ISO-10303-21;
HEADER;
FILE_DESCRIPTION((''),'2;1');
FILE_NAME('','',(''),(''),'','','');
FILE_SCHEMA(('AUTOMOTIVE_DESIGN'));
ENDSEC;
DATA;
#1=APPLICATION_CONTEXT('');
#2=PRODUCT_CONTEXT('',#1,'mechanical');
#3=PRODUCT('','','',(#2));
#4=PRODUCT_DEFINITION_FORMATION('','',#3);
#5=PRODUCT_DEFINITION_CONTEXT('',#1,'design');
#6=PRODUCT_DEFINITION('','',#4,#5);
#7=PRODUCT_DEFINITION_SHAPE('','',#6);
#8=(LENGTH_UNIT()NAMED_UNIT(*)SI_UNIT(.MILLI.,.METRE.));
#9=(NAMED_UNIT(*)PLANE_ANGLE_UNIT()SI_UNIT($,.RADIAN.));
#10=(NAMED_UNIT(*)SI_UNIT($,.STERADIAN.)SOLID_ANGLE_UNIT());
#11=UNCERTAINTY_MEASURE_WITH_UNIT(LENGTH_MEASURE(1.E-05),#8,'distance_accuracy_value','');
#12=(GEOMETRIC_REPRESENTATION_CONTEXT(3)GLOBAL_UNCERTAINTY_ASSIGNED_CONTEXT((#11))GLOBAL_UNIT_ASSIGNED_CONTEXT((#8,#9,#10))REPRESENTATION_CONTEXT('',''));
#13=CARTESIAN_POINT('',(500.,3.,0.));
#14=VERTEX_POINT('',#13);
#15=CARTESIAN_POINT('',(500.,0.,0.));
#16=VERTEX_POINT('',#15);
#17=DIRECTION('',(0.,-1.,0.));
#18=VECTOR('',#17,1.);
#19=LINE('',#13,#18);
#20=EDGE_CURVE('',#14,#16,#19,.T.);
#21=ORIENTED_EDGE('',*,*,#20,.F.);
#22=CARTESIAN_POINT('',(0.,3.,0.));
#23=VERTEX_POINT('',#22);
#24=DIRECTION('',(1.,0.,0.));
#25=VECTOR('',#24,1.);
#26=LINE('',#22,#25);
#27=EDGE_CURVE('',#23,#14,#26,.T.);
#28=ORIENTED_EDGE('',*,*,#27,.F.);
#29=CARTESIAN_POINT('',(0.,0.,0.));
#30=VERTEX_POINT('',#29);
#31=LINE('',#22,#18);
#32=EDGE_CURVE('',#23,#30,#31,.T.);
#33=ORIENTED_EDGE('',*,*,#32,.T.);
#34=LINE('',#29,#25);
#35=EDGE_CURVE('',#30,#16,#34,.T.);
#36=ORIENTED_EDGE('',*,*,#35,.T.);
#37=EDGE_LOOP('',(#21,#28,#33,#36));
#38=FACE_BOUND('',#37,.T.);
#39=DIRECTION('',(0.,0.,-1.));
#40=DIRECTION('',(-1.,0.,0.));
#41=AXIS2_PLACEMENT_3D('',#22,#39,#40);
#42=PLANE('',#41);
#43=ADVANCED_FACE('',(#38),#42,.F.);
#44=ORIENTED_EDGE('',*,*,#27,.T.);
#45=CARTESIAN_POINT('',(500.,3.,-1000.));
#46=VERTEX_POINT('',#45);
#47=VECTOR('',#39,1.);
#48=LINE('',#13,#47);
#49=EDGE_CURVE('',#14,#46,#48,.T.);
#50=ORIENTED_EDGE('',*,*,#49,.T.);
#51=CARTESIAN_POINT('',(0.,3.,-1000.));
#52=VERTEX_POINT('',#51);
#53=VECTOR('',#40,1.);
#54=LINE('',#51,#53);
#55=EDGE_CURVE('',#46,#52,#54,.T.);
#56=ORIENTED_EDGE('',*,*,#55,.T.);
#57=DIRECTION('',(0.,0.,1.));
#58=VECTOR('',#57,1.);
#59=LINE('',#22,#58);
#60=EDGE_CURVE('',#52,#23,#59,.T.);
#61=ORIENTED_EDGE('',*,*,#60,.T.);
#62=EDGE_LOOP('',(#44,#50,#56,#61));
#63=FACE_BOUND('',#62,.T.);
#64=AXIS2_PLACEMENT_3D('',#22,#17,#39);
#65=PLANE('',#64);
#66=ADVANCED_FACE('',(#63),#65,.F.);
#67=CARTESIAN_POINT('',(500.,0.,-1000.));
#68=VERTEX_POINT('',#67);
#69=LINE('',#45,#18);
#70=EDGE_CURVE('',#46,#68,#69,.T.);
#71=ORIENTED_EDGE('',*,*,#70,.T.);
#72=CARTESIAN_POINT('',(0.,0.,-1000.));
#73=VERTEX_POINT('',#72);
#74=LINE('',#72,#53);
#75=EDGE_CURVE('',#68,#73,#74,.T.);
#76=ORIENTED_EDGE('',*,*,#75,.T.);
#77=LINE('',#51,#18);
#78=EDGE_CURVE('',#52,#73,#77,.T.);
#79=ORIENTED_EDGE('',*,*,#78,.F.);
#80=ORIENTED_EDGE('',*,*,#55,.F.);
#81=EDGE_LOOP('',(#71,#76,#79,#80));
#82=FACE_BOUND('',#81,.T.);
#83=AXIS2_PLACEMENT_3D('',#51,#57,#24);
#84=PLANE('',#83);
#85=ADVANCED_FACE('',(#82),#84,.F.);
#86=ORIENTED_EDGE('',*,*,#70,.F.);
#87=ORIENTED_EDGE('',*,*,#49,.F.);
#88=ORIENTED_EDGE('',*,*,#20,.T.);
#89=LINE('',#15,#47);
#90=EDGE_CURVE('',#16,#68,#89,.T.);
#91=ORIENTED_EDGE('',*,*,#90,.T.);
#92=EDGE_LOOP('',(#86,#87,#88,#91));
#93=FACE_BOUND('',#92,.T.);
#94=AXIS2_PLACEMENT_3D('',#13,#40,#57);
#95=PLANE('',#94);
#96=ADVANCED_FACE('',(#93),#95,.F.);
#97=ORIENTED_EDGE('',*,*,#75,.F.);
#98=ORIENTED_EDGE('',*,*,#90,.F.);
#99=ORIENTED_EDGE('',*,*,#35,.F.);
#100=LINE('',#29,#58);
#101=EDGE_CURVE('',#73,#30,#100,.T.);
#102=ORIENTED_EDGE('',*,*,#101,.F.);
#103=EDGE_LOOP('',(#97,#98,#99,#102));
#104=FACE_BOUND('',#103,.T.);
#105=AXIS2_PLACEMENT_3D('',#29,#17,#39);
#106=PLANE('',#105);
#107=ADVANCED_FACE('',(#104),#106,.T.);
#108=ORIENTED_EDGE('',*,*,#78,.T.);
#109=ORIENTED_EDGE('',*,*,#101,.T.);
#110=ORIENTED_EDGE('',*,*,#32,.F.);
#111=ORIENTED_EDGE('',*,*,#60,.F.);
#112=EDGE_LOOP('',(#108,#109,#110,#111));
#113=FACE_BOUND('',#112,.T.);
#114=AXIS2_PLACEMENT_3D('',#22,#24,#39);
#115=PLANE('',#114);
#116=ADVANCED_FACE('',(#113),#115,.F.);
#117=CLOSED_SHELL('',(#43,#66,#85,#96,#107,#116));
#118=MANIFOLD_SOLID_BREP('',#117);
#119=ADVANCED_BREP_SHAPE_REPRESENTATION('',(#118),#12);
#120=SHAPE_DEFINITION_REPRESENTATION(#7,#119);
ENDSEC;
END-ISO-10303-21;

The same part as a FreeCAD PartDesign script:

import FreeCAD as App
import Part
import Sketcher
Q = App.Units.Quantity


def add_polygon(sketch, points):
    """Adds a closed chain of lines whose ends are joined by coincident constraints."""
    first, n = sketch.GeometryCount, len(points)
    for a, b in zip(points, points[1:] + points[:1]):
        sketch.addGeometry(Part.LineSegment(App.Vector(*a, 0), App.Vector(*b, 0)), False)
    for i in range(n):
        sketch.addConstraint(Sketcher.Constraint("Coincident", first + i, 2, first + (i + 1) % n, 1))

doc = App.newDocument("Part")
params = doc.addObject("Spreadsheet::Sheet", "Params")
for row, (alias, value) in enumerate([
    ("sketch1_width", "500 mm"),
    ("sketch1_height", "1000 mm"),
    ("pad1_length", "3 mm"),
], start=1):
    params.set(f"A{row}", alias)
    params.set(f"B{row}", "=" + value)
    params.setAlias(f"B{row}", alias)

body = doc.addObject("PartDesign::Body", "Body")

sketch1 = doc.addObject("Sketcher::SketchObject", "Sketch")
body.addObject(sketch1)
sketch1.AttachmentSupport = (doc.XZ_Plane, [""])
sketch1.MapMode = "FlatFace"
add_polygon(sketch1, [(0, -1000), (0, 0), (500, 0), (500, -1000)])
sketch1.addConstraint([
    Sketcher.Constraint("Vertical", 0),
    Sketcher.Constraint("Horizontal", 1),
    Sketcher.Constraint("Vertical", 2),
    Sketcher.Constraint("Horizontal", 3),
    Sketcher.Constraint("Coincident", 0, 2, -1, 1),
    Sketcher.Constraint("DistanceX", 1, 1, 1, 2, Q("500 mm")),
    Sketcher.Constraint("DistanceY", 0, 1, 0, 2, Q("1000 mm")),
])
sketch1.setExpression("Constraints[9]", "Params.sketch1_width")
sketch1.setExpression("Constraints[10]", "Params.sketch1_height")
pad1 = doc.addObject("PartDesign::Pad", "Pad")
body.addObject(pad1)
pad1.Profile = sketch1
pad1.setExpression("Length", "Params.pad1_length")
pad1.Reversed = True

doc.recompute()
